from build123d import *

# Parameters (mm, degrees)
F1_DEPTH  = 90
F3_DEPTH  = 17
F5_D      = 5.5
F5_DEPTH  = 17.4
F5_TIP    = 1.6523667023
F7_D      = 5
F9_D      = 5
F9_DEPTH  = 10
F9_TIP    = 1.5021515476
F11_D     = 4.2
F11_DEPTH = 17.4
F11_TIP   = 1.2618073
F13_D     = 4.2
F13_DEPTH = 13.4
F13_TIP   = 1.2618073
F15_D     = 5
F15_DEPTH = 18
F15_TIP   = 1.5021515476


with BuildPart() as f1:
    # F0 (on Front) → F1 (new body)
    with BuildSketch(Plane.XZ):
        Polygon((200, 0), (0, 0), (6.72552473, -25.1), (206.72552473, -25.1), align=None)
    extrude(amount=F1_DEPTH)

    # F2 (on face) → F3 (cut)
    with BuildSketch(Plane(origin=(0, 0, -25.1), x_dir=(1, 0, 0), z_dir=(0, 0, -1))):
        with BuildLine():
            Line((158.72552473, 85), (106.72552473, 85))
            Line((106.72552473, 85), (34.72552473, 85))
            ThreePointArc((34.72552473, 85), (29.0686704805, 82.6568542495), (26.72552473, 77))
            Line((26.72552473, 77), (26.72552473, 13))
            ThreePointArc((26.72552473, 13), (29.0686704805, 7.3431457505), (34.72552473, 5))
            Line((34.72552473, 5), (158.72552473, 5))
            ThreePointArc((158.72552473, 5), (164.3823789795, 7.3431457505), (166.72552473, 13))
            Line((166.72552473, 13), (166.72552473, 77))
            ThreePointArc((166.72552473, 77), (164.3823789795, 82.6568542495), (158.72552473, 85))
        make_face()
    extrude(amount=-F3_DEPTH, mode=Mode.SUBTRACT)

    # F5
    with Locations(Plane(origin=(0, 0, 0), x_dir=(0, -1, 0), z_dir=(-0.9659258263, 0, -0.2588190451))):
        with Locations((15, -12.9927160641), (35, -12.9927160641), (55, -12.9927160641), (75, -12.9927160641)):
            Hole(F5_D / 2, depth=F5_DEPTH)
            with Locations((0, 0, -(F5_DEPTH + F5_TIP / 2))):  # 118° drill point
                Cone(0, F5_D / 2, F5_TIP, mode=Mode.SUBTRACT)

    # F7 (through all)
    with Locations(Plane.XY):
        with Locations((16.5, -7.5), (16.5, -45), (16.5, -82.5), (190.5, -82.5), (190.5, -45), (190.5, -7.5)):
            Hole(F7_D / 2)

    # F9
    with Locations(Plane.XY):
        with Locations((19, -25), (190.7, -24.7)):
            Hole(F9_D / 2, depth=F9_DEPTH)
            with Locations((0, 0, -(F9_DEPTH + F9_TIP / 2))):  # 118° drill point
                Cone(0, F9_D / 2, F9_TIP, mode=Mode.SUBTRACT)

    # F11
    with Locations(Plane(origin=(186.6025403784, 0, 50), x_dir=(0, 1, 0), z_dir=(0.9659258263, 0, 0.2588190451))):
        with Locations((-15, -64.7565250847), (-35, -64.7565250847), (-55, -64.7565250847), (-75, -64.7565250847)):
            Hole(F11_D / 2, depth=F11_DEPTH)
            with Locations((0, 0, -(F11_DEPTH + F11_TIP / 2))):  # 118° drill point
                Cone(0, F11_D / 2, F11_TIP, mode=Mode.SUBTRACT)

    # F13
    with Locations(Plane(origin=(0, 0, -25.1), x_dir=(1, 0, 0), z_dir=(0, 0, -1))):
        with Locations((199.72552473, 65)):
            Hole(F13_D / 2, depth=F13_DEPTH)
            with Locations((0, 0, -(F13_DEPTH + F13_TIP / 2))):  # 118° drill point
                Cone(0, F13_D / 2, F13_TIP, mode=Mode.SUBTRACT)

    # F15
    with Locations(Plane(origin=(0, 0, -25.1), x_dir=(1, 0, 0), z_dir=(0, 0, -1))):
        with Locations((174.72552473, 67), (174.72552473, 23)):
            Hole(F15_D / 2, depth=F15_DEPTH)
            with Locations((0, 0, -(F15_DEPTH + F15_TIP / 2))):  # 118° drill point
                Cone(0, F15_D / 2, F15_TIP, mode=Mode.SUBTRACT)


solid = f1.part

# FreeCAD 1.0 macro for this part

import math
import FreeCAD as App
import Part
import Sketcher
Q = App.Units.Quantity

doc = App.newDocument("Part")
body = doc.addObject("PartDesign::Body", "Body")

sketch1 = body.newObject("Sketcher::SketchObject", "Sketch")
sketch1.AttachmentSupport = (doc.getObject("XZ_Plane"), [""])
sketch1.MapMode = "FlatFace"
sketch1.addGeometry([
    Part.LineSegment(App.Vector(200, 0, 0), App.Vector(0, 0, 0)),
    Part.LineSegment(App.Vector(0, 0, 0), App.Vector(7, -25, 0)),
    Part.LineSegment(App.Vector(7, -25, 0), App.Vector(207, -25, 0)),
    Part.LineSegment(App.Vector(207, -25, 0), App.Vector(200, 0, 0)),
], False)
sketch1.addConstraint([
    Sketcher.Constraint("Coincident", 0, 2, 1, 1),
    Sketcher.Constraint("Coincident", 1, 2, 2, 1),
    Sketcher.Constraint("Coincident", 2, 2, 3, 1),
    Sketcher.Constraint("Coincident", 3, 2, 0, 1),
    Sketcher.Constraint("Horizontal", 0),
    Sketcher.Constraint("Horizontal", 2),
    Sketcher.Constraint("Coincident", 0, 2, -1, 1),
    Sketcher.Constraint("Parallel", 1, 3),
    Sketcher.Constraint("DistanceX", 0, 2, 0, 1, Q("200 mm")),
    Sketcher.Constraint("Angle", 1, Q("-75 deg")),
    Sketcher.Constraint("DistanceY", 1, 2, -1, 1, Q("25.1 mm")),
])
pad1 = body.newObject("PartDesign::Pad", "Pad")
pad1.Profile = sketch1
pad1.Length = 90

sketch2 = body.newObject("Sketcher::SketchObject", "Sketch001")
sketch2.AttachmentSupport = (doc.getObject("XY_Plane"), [""])
sketch2.MapMode = "FlatFace"
sketch2.AttachmentOffset = App.Placement(App.Vector(0, 0, -25.1), App.Rotation())
sketch2.addGeometry([
    Part.LineSegment(App.Vector(159, -85, 0), App.Vector(35, -85, 0)),
    Part.ArcOfCircle(Part.Circle(App.Vector(35, -77, 0), App.Vector(0, 0, 1), 8), math.radians(180), math.radians(270)),
    Part.LineSegment(App.Vector(27, -77, 0), App.Vector(27, -13, 0)),
    Part.ArcOfCircle(Part.Circle(App.Vector(35, -13, 0), App.Vector(0, 0, 1), 8), math.radians(90), math.radians(180)),
    Part.LineSegment(App.Vector(35, -5, 0), App.Vector(159, -5, 0)),
    Part.ArcOfCircle(Part.Circle(App.Vector(159, -13, 0), App.Vector(0, 0, 1), 8), math.radians(0), math.radians(90)),
    Part.LineSegment(App.Vector(167, -13, 0), App.Vector(167, -77, 0)),
    Part.ArcOfCircle(Part.Circle(App.Vector(159, -77, 0), App.Vector(0, 0, 1), 8), math.radians(-90), math.radians(0)),
], False)
sketch2.addConstraint([
    Sketcher.Constraint("Tangent", 0, 2, 1, 2),
    Sketcher.Constraint("Tangent", 1, 1, 2, 1),
    Sketcher.Constraint("Tangent", 2, 2, 3, 2),
    Sketcher.Constraint("Tangent", 3, 1, 4, 1),
    Sketcher.Constraint("Tangent", 4, 2, 5, 2),
    Sketcher.Constraint("Tangent", 5, 1, 6, 1),
    Sketcher.Constraint("Tangent", 6, 2, 7, 2),
    Sketcher.Constraint("Tangent", 7, 1, 0, 1),
    Sketcher.Constraint("Horizontal", 0),
    Sketcher.Constraint("Vertical", 2),
    Sketcher.Constraint("Horizontal", 4),
    Sketcher.Constraint("Vertical", 6),
    Sketcher.Constraint("Equal", 1, 3),
    Sketcher.Constraint("Equal", 3, 5),
    Sketcher.Constraint("Equal", 5, 7),
    Sketcher.Constraint("Radius", 1, Q("8 mm")),
    Sketcher.Constraint("DistanceX", 0, 2, 0, 1, Q("124 mm")),
    Sketcher.Constraint("DistanceY", 2, 1, 2, 2, Q("64 mm")),
    Sketcher.Constraint("DistanceY", 1, 3, -1, 1, Q("77 mm")),
    Sketcher.Constraint("DistanceX", -1, 1, 1, 3, Q("34.725525 mm")),
])
pocket1 = body.newObject("PartDesign::Pocket", "Pocket")
pocket1.Profile = sketch2
pocket1.Length = 17
pocket1.Reversed = True

sketch3 = body.newObject("Sketcher::SketchObject", "Sketch002")
sketch3.Placement = App.Placement(App.Vector(0, 0, 0), App.Rotation(App.Vector(0, -1, 0), App.Vector(-0.258819045, 0, 0.965925826), App.Vector(-0.965925826, 0, -0.258819045), "ZXY"))
sketch3.addGeometry([
    Part.Circle(App.Vector(15, -13, 0), App.Vector(0, 0, 1), 2.8),
    Part.Circle(App.Vector(35, -13, 0), App.Vector(0, 0, 1), 2.8),
    Part.Circle(App.Vector(55, -13, 0), App.Vector(0, 0, 1), 2.8),
    Part.Circle(App.Vector(75, -13, 0), App.Vector(0, 0, 1), 2.8),
], False)
sketch3.addConstraint([
    Sketcher.Constraint("Equal", 0, 1),
    Sketcher.Constraint("Equal", 1, 2),
    Sketcher.Constraint("Equal", 2, 3),
    Sketcher.Constraint("Horizontal", 0, 3, 1, 3),
    Sketcher.Constraint("Horizontal", 1, 3, 2, 3),
    Sketcher.Constraint("Horizontal", 2, 3, 3, 3),
    Sketcher.Constraint("Diameter", 0, Q("5.5 mm")),
    Sketcher.Constraint("DistanceX", -1, 1, 0, 3, Q("15 mm")),
    Sketcher.Constraint("DistanceX", -1, 1, 1, 3, Q("35 mm")),
    Sketcher.Constraint("DistanceX", -1, 1, 2, 3, Q("55 mm")),
    Sketcher.Constraint("DistanceX", -1, 1, 3, 3, Q("75 mm")),
    Sketcher.Constraint("DistanceY", 0, 3, -1, 1, Q("12.992716 mm")),
])
doc.recompute()
hole = body.newObject("PartDesign::Hole", "Hole")
hole.Profile = sketch3
hole.ThreadType = "None"
hole.Diameter = 5.5
hole.DepthType = "Dimension"
hole.Depth = 17.4
hole.DrillPoint = "Angled"
hole.DrillPointAngle = 118

sketch4 = body.newObject("Sketcher::SketchObject", "Sketch003")
sketch4.AttachmentSupport = (doc.getObject("XY_Plane"), [""])
sketch4.MapMode = "FlatFace"
sketch4.addGeometry([
    Part.Circle(App.Vector(16.5, -7.5, 0), App.Vector(0, 0, 1), 2.5),
    Part.Circle(App.Vector(16.5, -45, 0), App.Vector(0, 0, 1), 2.5),
    Part.Circle(App.Vector(16.5, -82.5, 0), App.Vector(0, 0, 1), 2.5),
    Part.Circle(App.Vector(190.5, -82.5, 0), App.Vector(0, 0, 1), 2.5),
    Part.Circle(App.Vector(190.5, -45, 0), App.Vector(0, 0, 1), 2.5),
    Part.Circle(App.Vector(190.5, -7.5, 0), App.Vector(0, 0, 1), 2.5),
], False)
sketch4.addConstraint([
    Sketcher.Constraint("Equal", 0, 1),
    Sketcher.Constraint("Equal", 1, 2),
    Sketcher.Constraint("Equal", 2, 3),
    Sketcher.Constraint("Equal", 3, 4),
    Sketcher.Constraint("Equal", 4, 5),
    Sketcher.Constraint("Horizontal", 2, 3, 3, 3),
    Sketcher.Constraint("Horizontal", 1, 3, 4, 3),
    Sketcher.Constraint("Horizontal", 0, 3, 5, 3),
    Sketcher.Constraint("Vertical", 0, 3, 1, 3),
    Sketcher.Constraint("Vertical", 1, 3, 2, 3),
    Sketcher.Constraint("Vertical", 3, 3, 4, 3),
    Sketcher.Constraint("Vertical", 4, 3, 5, 3),
    Sketcher.Constraint("Diameter", 0, Q("5 mm")),
    Sketcher.Constraint("DistanceY", 1, 3, -1, 1, Q("45 mm")),
    Sketcher.Constraint("DistanceY", 2, 3, 0, 3, Q("75 mm")),
    Sketcher.Constraint("DistanceX", 2, 3, 3, 3, Q("174 mm")),
    Sketcher.Constraint("DistanceX", -1, 1, 0, 3, Q("16.5 mm")),
    Sketcher.Constraint("DistanceY", 0, 3, -1, 1, Q("7.5 mm")),
])
doc.recompute()
hole2 = body.newObject("PartDesign::Hole", "Hole001")
hole2.Profile = sketch4
hole2.ThreadType = "None"
hole2.Diameter = 5
hole2.DepthType = "ThroughAll"

sketch5 = body.newObject("Sketcher::SketchObject", "Sketch004")
sketch5.AttachmentSupport = (doc.getObject("XY_Plane"), [""])
sketch5.MapMode = "FlatFace"
sketch5.addGeometry([
    Part.Circle(App.Vector(19, -25, 0), App.Vector(0, 0, 1), 2.5),
    Part.Circle(App.Vector(190.7, -24.7, 0), App.Vector(0, 0, 1), 2.5),
], False)
sketch5.addConstraint([
    Sketcher.Constraint("Equal", 0, 1),
    Sketcher.Constraint("Diameter", 0, Q("5 mm")),
    Sketcher.Constraint("DistanceX", -1, 1, 0, 3, Q("19 mm")),
    Sketcher.Constraint("DistanceY", 0, 3, -1, 1, Q("25 mm")),
    Sketcher.Constraint("DistanceX", -1, 1, 1, 3, Q("190.7 mm")),
    Sketcher.Constraint("DistanceY", 1, 3, -1, 1, Q("24.7 mm")),
])
doc.recompute()
hole3 = body.newObject("PartDesign::Hole", "Hole002")
hole3.Profile = sketch5
hole3.ThreadType = "None"
hole3.Diameter = 5
hole3.DepthType = "Dimension"
hole3.Depth = 10
hole3.DrillPoint = "Angled"
hole3.DrillPointAngle = 118

sketch6 = body.newObject("Sketcher::SketchObject", "Sketch005")
sketch6.Placement = App.Placement(App.Vector(186.60254, 0, 50), App.Rotation(App.Vector(0, 1, 0), App.Vector(-0.258819045, 0, 0.965925826), App.Vector(0.965925826, 0, 0.258819045), "ZXY"))
sketch6.addGeometry([
    Part.Circle(App.Vector(-15, -64.8, 0), App.Vector(0, 0, 1), 2.1),
    Part.Circle(App.Vector(-35, -64.8, 0), App.Vector(0, 0, 1), 2.1),
    Part.Circle(App.Vector(-55, -64.8, 0), App.Vector(0, 0, 1), 2.1),
    Part.Circle(App.Vector(-75, -64.8, 0), App.Vector(0, 0, 1), 2.1),
], False)
sketch6.addConstraint([
    Sketcher.Constraint("Equal", 0, 1),
    Sketcher.Constraint("Equal", 1, 2),
    Sketcher.Constraint("Equal", 2, 3),
    Sketcher.Constraint("Horizontal", 0, 3, 1, 3),
    Sketcher.Constraint("Horizontal", 1, 3, 2, 3),
    Sketcher.Constraint("Horizontal", 2, 3, 3, 3),
    Sketcher.Constraint("Diameter", 0, Q("4.2 mm")),
    Sketcher.Constraint("DistanceX", 0, 3, -1, 1, Q("15 mm")),
    Sketcher.Constraint("DistanceX", 1, 3, -1, 1, Q("35 mm")),
    Sketcher.Constraint("DistanceX", 2, 3, -1, 1, Q("55 mm")),
    Sketcher.Constraint("DistanceX", 3, 3, -1, 1, Q("75 mm")),
    Sketcher.Constraint("DistanceY", 0, 3, -1, 1, Q("64.756525 mm")),
])
doc.recompute()
hole4 = body.newObject("PartDesign::Hole", "Hole003")
hole4.Profile = sketch6
hole4.ThreadType = "None"
hole4.Diameter = 4.2
hole4.DepthType = "Dimension"
hole4.Depth = 17.4
hole4.DrillPoint = "Angled"
hole4.DrillPointAngle = 118

sketch7 = body.newObject("Sketcher::SketchObject", "Sketch006")
sketch7.AttachmentSupport = (doc.getObject("XY_Plane"), [""])
sketch7.MapMode = "FlatFace"
sketch7.AttachmentOffset = App.Placement(App.Vector(0, 0, -25.1), App.Rotation())
sketch7.addGeometry(Part.Circle(App.Vector(199.7, -65, 0), App.Vector(0, 0, 1), 2.1), False)
sketch7.addConstraint([
    Sketcher.Constraint("Diameter", 0, Q("4.2 mm")),
    Sketcher.Constraint("DistanceY", 0, 3, -1, 1, Q("65 mm")),
    Sketcher.Constraint("DistanceX", -1, 1, 0, 3, Q("199.725525 mm")),
])
doc.recompute()
hole5 = body.newObject("PartDesign::Hole", "Hole004")
hole5.Profile = sketch7
hole5.ThreadType = "None"
hole5.Diameter = 4.2
hole5.DepthType = "Dimension"
hole5.Depth = 13.4
hole5.DrillPoint = "Angled"
hole5.DrillPointAngle = 118
hole5.Reversed = True

sketch8 = body.newObject("Sketcher::SketchObject", "Sketch007")
sketch8.AttachmentSupport = (doc.getObject("XY_Plane"), [""])
sketch8.MapMode = "FlatFace"
sketch8.AttachmentOffset = App.Placement(App.Vector(0, 0, -25.1), App.Rotation())
sketch8.addGeometry([
    Part.Circle(App.Vector(174.7, -67, 0), App.Vector(0, 0, 1), 2.5),
    Part.Circle(App.Vector(174.7, -23, 0), App.Vector(0, 0, 1), 2.5),
], False)
sketch8.addConstraint([
    Sketcher.Constraint("Equal", 0, 1),
    Sketcher.Constraint("Vertical", 0, 3, 1, 3),
    Sketcher.Constraint("Diameter", 0, Q("5 mm")),
    Sketcher.Constraint("DistanceY", 0, 3, -1, 1, Q("67 mm")),
    Sketcher.Constraint("DistanceY", 1, 3, -1, 1, Q("23 mm")),
    Sketcher.Constraint("DistanceX", -1, 1, 0, 3, Q("174.725525 mm")),
])
doc.recompute()
hole6 = body.newObject("PartDesign::Hole", "Hole005")
hole6.Profile = sketch8
hole6.ThreadType = "None"
hole6.Diameter = 5
hole6.DepthType = "Dimension"
hole6.Depth = 18
hole6.DrillPoint = "Angled"
hole6.DrillPointAngle = 118
hole6.Reversed = True

doc.recompute()
